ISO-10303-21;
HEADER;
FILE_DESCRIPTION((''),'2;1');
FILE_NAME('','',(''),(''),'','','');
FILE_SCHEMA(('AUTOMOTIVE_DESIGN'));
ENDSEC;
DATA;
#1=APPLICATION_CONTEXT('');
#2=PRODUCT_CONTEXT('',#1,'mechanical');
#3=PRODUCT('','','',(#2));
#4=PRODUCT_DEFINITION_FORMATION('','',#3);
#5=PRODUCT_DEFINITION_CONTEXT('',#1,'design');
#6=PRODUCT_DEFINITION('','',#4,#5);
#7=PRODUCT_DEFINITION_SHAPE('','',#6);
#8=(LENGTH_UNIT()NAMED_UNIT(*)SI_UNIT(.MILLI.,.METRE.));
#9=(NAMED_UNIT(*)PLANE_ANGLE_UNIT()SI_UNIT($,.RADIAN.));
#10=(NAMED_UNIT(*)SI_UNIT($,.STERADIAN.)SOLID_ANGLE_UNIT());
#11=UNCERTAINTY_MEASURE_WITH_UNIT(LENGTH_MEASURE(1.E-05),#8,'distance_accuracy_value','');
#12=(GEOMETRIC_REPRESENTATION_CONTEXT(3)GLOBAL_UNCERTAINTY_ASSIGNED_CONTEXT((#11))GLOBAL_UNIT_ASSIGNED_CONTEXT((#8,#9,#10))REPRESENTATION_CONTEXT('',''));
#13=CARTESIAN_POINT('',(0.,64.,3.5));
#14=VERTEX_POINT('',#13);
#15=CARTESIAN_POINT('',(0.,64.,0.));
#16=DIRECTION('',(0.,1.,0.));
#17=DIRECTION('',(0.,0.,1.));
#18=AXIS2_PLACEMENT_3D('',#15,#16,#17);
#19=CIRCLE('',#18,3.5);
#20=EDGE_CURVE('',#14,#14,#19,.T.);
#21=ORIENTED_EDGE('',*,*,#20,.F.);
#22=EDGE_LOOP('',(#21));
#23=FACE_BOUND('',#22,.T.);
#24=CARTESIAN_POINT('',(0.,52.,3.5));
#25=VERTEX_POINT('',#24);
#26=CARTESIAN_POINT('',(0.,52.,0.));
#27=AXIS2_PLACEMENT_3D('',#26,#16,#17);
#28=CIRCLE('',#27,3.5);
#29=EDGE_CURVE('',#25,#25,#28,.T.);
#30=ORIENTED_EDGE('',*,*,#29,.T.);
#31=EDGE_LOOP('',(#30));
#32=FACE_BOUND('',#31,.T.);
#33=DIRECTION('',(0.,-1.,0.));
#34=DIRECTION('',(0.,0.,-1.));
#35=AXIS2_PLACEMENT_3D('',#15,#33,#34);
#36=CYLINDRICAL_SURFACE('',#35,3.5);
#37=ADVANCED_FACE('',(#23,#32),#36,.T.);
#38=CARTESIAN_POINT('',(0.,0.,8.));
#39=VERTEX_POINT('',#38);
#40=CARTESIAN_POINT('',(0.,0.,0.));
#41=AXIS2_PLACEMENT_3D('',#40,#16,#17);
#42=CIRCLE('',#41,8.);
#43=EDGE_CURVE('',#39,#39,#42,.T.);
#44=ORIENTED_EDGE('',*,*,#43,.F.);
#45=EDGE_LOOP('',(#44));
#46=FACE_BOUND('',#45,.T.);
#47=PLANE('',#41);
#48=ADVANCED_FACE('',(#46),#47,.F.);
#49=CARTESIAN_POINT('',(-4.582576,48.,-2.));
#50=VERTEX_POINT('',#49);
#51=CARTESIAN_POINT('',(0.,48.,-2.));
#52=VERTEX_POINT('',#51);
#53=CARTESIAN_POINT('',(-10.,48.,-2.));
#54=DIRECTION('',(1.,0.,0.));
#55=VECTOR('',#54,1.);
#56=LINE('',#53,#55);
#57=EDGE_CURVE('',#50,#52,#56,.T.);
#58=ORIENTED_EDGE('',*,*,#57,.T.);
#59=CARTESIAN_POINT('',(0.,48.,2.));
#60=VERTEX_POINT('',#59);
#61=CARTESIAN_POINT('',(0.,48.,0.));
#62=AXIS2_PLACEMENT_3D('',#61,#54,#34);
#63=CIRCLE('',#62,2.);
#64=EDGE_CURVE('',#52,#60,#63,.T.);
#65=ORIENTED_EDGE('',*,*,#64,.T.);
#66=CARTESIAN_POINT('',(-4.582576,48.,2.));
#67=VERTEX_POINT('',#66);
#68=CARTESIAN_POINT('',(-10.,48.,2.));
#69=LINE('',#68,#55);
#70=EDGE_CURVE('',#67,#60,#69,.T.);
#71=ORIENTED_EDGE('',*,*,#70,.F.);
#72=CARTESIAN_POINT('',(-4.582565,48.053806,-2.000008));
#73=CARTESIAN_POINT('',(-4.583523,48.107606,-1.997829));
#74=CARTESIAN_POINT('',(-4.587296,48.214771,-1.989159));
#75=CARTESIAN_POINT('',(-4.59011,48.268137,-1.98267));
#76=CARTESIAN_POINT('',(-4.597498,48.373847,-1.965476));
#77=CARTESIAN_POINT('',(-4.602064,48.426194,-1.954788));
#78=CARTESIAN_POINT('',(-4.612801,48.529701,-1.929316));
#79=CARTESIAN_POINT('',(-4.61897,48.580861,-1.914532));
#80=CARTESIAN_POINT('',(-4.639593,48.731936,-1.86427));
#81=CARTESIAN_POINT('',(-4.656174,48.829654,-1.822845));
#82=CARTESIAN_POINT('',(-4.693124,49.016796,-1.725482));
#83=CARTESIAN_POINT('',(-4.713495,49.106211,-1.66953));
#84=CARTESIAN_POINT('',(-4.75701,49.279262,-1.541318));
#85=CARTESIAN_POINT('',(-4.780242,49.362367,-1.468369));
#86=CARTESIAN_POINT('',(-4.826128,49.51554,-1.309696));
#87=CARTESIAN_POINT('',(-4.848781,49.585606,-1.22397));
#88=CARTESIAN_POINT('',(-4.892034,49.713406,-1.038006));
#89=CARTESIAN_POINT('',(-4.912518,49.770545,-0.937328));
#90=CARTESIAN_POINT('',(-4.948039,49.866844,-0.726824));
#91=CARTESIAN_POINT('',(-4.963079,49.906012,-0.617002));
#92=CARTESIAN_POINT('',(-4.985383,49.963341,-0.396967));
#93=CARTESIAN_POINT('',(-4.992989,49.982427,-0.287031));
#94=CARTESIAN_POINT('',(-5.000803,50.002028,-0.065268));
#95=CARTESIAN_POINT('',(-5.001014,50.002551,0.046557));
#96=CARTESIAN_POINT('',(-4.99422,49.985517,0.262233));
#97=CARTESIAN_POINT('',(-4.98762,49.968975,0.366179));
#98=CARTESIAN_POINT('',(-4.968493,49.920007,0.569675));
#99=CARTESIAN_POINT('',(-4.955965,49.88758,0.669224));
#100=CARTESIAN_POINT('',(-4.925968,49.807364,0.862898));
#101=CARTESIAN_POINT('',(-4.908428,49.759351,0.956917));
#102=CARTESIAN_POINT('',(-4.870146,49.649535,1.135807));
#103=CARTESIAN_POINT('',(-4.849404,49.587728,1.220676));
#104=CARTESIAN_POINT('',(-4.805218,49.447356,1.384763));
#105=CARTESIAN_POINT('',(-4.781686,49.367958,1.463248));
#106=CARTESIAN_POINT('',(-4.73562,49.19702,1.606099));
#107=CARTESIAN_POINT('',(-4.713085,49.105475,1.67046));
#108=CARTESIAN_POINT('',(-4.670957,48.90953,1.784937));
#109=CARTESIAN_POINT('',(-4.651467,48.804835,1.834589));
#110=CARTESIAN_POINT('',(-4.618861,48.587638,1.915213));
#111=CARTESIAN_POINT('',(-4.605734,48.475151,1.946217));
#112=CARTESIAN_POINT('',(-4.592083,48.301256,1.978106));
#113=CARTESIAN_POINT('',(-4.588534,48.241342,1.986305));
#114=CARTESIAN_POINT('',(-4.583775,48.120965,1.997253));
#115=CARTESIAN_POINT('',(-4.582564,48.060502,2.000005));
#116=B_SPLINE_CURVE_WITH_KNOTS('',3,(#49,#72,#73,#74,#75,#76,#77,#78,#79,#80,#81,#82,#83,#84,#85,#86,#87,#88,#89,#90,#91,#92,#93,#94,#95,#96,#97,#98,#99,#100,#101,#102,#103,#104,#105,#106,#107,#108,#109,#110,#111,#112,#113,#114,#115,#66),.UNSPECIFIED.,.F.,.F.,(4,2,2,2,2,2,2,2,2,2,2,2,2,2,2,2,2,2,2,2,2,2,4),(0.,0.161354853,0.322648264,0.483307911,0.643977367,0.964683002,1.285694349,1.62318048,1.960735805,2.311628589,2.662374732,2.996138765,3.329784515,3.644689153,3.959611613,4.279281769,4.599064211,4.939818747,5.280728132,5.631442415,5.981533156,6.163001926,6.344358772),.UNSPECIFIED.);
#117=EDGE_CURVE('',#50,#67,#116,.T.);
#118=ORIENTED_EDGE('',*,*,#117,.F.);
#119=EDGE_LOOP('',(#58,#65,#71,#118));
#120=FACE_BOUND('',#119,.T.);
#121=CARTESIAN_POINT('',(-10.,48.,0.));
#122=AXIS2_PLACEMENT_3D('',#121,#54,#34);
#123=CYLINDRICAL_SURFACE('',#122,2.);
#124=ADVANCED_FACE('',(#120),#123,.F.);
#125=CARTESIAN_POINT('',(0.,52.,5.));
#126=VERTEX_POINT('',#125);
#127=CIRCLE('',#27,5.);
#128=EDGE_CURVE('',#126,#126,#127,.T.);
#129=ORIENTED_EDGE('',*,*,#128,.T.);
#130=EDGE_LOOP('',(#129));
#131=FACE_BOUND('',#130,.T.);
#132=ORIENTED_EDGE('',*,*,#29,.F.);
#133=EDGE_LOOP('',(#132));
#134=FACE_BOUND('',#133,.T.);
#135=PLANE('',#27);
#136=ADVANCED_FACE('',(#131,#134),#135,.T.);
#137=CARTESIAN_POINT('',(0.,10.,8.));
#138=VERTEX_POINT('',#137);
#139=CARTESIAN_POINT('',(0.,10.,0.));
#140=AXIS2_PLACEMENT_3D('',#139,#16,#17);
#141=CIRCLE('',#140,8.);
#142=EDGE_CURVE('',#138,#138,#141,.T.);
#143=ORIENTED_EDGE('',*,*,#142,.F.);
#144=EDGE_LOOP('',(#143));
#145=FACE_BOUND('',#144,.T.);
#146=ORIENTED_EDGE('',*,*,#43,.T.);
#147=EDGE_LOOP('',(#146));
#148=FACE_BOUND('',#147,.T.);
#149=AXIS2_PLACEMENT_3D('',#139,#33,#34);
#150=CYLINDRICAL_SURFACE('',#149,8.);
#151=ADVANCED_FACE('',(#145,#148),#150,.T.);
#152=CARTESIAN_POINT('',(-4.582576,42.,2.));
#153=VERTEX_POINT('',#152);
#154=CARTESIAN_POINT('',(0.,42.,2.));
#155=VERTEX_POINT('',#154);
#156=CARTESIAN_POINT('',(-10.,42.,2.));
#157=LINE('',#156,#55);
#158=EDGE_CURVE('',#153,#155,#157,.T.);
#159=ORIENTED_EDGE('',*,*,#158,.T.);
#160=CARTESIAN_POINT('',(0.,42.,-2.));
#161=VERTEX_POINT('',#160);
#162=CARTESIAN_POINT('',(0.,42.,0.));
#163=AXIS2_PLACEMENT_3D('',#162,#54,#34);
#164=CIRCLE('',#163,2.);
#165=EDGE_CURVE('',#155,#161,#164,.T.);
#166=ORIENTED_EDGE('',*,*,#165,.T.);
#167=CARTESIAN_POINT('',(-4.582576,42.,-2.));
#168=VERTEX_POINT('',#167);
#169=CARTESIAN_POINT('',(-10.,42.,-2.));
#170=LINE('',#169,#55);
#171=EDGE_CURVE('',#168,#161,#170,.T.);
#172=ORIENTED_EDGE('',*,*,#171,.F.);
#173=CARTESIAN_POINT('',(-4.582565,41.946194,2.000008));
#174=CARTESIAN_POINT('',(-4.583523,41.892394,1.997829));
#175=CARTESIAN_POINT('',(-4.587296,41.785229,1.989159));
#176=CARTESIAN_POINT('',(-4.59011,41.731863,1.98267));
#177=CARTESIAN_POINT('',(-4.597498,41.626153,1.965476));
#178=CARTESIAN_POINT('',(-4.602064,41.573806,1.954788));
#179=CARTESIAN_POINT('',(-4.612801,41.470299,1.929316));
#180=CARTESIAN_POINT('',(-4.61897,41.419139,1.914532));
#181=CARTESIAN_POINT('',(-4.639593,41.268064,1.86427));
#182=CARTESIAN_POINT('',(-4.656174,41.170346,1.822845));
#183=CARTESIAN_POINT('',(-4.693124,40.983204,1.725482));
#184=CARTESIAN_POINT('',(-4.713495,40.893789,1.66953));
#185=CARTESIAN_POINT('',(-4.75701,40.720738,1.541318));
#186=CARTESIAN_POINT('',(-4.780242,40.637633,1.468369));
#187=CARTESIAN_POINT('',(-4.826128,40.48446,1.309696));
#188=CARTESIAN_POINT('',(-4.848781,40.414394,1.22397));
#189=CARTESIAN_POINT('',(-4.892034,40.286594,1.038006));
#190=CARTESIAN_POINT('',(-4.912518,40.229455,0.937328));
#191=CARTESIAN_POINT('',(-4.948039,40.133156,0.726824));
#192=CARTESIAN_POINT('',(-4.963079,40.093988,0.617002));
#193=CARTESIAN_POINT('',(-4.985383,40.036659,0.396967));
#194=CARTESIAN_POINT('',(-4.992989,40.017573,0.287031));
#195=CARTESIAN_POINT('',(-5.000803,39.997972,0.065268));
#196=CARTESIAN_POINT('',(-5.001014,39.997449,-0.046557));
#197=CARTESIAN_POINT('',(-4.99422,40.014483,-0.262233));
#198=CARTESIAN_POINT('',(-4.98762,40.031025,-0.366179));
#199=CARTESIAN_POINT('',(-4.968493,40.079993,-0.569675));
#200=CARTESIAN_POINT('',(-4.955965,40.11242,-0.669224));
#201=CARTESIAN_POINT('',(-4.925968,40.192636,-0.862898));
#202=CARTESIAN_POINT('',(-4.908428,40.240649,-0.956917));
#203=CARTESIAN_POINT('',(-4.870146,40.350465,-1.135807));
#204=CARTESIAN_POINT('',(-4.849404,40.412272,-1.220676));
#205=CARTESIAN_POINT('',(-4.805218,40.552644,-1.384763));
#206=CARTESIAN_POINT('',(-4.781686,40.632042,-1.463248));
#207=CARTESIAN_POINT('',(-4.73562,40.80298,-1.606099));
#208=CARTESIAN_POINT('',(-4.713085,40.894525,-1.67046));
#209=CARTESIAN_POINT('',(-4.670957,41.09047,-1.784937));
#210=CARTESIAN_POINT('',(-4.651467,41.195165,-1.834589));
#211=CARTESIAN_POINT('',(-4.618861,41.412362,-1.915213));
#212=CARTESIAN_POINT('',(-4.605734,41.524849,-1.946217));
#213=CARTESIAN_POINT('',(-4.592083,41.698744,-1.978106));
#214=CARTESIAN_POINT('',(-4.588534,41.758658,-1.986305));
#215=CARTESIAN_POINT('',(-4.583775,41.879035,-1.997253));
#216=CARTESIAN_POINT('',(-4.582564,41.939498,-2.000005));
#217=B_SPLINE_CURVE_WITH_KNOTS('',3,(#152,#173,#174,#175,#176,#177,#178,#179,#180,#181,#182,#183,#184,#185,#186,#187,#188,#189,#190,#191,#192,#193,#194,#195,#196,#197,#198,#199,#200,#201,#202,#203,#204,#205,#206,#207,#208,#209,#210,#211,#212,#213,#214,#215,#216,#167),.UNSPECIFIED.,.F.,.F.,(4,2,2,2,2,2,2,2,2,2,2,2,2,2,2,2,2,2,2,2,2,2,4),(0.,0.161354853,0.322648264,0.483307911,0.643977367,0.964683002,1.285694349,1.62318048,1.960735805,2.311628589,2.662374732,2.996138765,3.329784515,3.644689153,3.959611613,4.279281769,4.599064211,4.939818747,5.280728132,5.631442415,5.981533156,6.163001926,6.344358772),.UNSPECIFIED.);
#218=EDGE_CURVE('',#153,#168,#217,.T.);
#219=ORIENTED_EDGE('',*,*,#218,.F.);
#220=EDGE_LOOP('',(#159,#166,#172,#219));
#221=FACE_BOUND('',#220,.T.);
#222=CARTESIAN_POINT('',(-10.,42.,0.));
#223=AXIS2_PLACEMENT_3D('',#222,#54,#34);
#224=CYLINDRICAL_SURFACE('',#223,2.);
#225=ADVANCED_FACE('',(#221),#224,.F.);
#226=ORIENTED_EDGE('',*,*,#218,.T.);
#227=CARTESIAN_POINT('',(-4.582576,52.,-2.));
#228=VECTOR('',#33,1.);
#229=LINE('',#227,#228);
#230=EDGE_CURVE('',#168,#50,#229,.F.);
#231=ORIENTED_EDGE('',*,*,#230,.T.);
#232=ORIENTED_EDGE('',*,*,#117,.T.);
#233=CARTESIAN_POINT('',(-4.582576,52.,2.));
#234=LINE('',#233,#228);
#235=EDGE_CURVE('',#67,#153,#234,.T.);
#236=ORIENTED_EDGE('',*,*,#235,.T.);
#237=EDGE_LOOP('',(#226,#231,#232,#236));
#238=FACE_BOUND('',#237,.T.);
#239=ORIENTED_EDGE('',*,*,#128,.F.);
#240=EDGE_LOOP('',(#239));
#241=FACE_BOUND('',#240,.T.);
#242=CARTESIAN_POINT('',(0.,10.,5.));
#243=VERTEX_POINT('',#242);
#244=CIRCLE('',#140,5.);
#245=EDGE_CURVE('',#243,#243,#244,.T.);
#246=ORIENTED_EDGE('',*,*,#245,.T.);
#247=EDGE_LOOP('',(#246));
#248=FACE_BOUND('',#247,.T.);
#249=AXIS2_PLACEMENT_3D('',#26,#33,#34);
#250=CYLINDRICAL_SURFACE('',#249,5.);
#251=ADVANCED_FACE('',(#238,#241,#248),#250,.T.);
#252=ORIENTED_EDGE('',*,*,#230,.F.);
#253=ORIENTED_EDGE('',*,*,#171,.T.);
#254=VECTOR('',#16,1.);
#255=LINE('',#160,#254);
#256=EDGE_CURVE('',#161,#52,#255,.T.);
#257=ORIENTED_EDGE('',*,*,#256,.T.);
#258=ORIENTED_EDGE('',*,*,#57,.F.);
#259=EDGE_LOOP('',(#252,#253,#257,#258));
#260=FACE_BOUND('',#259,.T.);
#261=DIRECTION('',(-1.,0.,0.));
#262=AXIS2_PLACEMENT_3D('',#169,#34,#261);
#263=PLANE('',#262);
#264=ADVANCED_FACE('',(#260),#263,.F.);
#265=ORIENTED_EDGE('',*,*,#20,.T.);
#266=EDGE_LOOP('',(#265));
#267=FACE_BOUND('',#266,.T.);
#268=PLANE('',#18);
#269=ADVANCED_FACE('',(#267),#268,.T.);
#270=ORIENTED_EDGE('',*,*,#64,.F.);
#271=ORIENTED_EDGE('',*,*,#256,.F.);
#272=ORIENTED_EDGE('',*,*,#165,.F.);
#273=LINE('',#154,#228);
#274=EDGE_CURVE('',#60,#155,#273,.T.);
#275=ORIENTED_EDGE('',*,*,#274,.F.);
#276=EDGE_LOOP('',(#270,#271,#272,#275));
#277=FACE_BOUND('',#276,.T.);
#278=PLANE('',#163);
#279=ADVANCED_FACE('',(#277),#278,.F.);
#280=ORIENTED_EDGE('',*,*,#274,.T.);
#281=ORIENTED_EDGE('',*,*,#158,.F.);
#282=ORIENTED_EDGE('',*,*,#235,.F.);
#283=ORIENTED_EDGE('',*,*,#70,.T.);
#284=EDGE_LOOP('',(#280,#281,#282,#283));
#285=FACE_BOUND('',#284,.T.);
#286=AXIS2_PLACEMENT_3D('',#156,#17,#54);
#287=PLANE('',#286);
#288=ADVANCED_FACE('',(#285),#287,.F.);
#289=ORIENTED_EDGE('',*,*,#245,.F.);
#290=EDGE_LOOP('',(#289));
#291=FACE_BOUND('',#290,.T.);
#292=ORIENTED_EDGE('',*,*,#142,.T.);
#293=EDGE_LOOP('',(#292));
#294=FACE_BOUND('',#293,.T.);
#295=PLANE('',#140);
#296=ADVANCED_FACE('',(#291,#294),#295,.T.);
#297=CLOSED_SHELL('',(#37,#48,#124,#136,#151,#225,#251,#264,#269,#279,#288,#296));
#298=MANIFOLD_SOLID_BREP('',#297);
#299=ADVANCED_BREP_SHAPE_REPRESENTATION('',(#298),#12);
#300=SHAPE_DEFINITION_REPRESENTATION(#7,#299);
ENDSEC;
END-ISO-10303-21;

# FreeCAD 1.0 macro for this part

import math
import FreeCAD as App
import Part
import Sketcher
Q = App.Units.Quantity

doc = App.newDocument("Part")
body = doc.addObject("PartDesign::Body", "Body")

# Sketch on XZ plane
sketch1 = body.newObject("Sketcher::SketchObject", "Sketch")
sketch1.AttachmentSupport = (doc.getObject("XZ_Plane"), [""])
sketch1.MapMode = "FlatFace"
sketch1.addGeometry(Part.Circle(App.Vector(0, 0, 0), App.Vector(0, 0, 1), 8), False)
sketch1.addConstraint(Sketcher.Constraint("Coincident", 0, 3, -1, 1))
sketch1.addConstraint(Sketcher.Constraint("Diameter", 0, Q("16 mm")))
pad1 = body.newObject("PartDesign::Pad", "Pad")
pad1.Profile = sketch1
pad1.Length = 10
pad1.Reversed = True

# Sketch on XZ plane
sketch2 = body.newObject("Sketcher::SketchObject", "Sketch001")
sketch2.AttachmentSupport = (doc.getObject("XZ_Plane"), [""])
sketch2.MapMode = "FlatFace"
sketch2.AttachmentOffset = App.Placement(App.Vector(0, 0, -10), App.Rotation())
sketch2.addGeometry(Part.Circle(App.Vector(0, 0, 0), App.Vector(0, 0, 1), 5), False)
sketch2.addConstraint(Sketcher.Constraint("Coincident", 0, 3, -1, 1))
sketch2.addConstraint(Sketcher.Constraint("Diameter", 0, Q("10 mm")))
pad2 = body.newObject("PartDesign::Pad", "Pad001")
pad2.Profile = sketch2
pad2.Length = 42
pad2.Reversed = True

# Sketch on XZ plane
sketch3 = body.newObject("Sketcher::SketchObject", "Sketch002")
sketch3.AttachmentSupport = (doc.getObject("XZ_Plane"), [""])
sketch3.MapMode = "FlatFace"
sketch3.AttachmentOffset = App.Placement(App.Vector(0, 0, -52), App.Rotation())
sketch3.addGeometry(Part.Circle(App.Vector(0, 0, 0), App.Vector(0, 0, 1), 3.5), False)
sketch3.addConstraint(Sketcher.Constraint("Coincident", 0, 3, -1, 1))
sketch3.addConstraint(Sketcher.Constraint("Diameter", 0, Q("7 mm")))
pad3 = body.newObject("PartDesign::Pad", "Pad002")
pad3.Profile = sketch3
pad3.Length = 12
pad3.Reversed = True

# Sketch on YZ plane
sketch4 = body.newObject("Sketcher::SketchObject", "Sketch003")
sketch4.AttachmentSupport = (doc.getObject("YZ_Plane"), [""])
sketch4.MapMode = "FlatFace"
sketch4.addGeometry(Part.LineSegment(App.Vector(48, 2, 0), App.Vector(42, 2, 0)), False)
sketch4.addGeometry(Part.ArcOfCircle(Part.Circle(App.Vector(42, 0, 0), App.Vector(0, 0, 1), 2), math.radians(90), math.radians(270)), False)
sketch4.addGeometry(Part.LineSegment(App.Vector(42, -2, 0), App.Vector(48, -2, 0)), False)
sketch4.addGeometry(Part.ArcOfCircle(Part.Circle(App.Vector(48, 0, 0), App.Vector(0, 0, 1), 2), math.radians(-90), math.radians(90)), False)
sketch4.addConstraint(Sketcher.Constraint("Tangent", 0, 2, 1, 1))
sketch4.addConstraint(Sketcher.Constraint("Tangent", 1, 2, 2, 1))
sketch4.addConstraint(Sketcher.Constraint("Tangent", 2, 2, 3, 1))
sketch4.addConstraint(Sketcher.Constraint("Tangent", 3, 2, 0, 1))
sketch4.addConstraint(Sketcher.Constraint("Horizontal", 0))
sketch4.addConstraint(Sketcher.Constraint("Horizontal", 2))
sketch4.addConstraint(Sketcher.Constraint("PointOnObject", 1, 3, -1))
sketch4.addConstraint(Sketcher.Constraint("Radius", 1, Q("2 mm")))
sketch4.addConstraint(Sketcher.Constraint("DistanceX", 0, 2, 0, 1, Q("6 mm")))
sketch4.addConstraint(Sketcher.Constraint("DistanceX", -1, 1, 1, 3, Q("42 mm")))
pocket1 = body.newObject("PartDesign::Pocket", "Pocket")
pocket1.Profile = sketch4
pocket1.Length = 10

doc.recompute()
